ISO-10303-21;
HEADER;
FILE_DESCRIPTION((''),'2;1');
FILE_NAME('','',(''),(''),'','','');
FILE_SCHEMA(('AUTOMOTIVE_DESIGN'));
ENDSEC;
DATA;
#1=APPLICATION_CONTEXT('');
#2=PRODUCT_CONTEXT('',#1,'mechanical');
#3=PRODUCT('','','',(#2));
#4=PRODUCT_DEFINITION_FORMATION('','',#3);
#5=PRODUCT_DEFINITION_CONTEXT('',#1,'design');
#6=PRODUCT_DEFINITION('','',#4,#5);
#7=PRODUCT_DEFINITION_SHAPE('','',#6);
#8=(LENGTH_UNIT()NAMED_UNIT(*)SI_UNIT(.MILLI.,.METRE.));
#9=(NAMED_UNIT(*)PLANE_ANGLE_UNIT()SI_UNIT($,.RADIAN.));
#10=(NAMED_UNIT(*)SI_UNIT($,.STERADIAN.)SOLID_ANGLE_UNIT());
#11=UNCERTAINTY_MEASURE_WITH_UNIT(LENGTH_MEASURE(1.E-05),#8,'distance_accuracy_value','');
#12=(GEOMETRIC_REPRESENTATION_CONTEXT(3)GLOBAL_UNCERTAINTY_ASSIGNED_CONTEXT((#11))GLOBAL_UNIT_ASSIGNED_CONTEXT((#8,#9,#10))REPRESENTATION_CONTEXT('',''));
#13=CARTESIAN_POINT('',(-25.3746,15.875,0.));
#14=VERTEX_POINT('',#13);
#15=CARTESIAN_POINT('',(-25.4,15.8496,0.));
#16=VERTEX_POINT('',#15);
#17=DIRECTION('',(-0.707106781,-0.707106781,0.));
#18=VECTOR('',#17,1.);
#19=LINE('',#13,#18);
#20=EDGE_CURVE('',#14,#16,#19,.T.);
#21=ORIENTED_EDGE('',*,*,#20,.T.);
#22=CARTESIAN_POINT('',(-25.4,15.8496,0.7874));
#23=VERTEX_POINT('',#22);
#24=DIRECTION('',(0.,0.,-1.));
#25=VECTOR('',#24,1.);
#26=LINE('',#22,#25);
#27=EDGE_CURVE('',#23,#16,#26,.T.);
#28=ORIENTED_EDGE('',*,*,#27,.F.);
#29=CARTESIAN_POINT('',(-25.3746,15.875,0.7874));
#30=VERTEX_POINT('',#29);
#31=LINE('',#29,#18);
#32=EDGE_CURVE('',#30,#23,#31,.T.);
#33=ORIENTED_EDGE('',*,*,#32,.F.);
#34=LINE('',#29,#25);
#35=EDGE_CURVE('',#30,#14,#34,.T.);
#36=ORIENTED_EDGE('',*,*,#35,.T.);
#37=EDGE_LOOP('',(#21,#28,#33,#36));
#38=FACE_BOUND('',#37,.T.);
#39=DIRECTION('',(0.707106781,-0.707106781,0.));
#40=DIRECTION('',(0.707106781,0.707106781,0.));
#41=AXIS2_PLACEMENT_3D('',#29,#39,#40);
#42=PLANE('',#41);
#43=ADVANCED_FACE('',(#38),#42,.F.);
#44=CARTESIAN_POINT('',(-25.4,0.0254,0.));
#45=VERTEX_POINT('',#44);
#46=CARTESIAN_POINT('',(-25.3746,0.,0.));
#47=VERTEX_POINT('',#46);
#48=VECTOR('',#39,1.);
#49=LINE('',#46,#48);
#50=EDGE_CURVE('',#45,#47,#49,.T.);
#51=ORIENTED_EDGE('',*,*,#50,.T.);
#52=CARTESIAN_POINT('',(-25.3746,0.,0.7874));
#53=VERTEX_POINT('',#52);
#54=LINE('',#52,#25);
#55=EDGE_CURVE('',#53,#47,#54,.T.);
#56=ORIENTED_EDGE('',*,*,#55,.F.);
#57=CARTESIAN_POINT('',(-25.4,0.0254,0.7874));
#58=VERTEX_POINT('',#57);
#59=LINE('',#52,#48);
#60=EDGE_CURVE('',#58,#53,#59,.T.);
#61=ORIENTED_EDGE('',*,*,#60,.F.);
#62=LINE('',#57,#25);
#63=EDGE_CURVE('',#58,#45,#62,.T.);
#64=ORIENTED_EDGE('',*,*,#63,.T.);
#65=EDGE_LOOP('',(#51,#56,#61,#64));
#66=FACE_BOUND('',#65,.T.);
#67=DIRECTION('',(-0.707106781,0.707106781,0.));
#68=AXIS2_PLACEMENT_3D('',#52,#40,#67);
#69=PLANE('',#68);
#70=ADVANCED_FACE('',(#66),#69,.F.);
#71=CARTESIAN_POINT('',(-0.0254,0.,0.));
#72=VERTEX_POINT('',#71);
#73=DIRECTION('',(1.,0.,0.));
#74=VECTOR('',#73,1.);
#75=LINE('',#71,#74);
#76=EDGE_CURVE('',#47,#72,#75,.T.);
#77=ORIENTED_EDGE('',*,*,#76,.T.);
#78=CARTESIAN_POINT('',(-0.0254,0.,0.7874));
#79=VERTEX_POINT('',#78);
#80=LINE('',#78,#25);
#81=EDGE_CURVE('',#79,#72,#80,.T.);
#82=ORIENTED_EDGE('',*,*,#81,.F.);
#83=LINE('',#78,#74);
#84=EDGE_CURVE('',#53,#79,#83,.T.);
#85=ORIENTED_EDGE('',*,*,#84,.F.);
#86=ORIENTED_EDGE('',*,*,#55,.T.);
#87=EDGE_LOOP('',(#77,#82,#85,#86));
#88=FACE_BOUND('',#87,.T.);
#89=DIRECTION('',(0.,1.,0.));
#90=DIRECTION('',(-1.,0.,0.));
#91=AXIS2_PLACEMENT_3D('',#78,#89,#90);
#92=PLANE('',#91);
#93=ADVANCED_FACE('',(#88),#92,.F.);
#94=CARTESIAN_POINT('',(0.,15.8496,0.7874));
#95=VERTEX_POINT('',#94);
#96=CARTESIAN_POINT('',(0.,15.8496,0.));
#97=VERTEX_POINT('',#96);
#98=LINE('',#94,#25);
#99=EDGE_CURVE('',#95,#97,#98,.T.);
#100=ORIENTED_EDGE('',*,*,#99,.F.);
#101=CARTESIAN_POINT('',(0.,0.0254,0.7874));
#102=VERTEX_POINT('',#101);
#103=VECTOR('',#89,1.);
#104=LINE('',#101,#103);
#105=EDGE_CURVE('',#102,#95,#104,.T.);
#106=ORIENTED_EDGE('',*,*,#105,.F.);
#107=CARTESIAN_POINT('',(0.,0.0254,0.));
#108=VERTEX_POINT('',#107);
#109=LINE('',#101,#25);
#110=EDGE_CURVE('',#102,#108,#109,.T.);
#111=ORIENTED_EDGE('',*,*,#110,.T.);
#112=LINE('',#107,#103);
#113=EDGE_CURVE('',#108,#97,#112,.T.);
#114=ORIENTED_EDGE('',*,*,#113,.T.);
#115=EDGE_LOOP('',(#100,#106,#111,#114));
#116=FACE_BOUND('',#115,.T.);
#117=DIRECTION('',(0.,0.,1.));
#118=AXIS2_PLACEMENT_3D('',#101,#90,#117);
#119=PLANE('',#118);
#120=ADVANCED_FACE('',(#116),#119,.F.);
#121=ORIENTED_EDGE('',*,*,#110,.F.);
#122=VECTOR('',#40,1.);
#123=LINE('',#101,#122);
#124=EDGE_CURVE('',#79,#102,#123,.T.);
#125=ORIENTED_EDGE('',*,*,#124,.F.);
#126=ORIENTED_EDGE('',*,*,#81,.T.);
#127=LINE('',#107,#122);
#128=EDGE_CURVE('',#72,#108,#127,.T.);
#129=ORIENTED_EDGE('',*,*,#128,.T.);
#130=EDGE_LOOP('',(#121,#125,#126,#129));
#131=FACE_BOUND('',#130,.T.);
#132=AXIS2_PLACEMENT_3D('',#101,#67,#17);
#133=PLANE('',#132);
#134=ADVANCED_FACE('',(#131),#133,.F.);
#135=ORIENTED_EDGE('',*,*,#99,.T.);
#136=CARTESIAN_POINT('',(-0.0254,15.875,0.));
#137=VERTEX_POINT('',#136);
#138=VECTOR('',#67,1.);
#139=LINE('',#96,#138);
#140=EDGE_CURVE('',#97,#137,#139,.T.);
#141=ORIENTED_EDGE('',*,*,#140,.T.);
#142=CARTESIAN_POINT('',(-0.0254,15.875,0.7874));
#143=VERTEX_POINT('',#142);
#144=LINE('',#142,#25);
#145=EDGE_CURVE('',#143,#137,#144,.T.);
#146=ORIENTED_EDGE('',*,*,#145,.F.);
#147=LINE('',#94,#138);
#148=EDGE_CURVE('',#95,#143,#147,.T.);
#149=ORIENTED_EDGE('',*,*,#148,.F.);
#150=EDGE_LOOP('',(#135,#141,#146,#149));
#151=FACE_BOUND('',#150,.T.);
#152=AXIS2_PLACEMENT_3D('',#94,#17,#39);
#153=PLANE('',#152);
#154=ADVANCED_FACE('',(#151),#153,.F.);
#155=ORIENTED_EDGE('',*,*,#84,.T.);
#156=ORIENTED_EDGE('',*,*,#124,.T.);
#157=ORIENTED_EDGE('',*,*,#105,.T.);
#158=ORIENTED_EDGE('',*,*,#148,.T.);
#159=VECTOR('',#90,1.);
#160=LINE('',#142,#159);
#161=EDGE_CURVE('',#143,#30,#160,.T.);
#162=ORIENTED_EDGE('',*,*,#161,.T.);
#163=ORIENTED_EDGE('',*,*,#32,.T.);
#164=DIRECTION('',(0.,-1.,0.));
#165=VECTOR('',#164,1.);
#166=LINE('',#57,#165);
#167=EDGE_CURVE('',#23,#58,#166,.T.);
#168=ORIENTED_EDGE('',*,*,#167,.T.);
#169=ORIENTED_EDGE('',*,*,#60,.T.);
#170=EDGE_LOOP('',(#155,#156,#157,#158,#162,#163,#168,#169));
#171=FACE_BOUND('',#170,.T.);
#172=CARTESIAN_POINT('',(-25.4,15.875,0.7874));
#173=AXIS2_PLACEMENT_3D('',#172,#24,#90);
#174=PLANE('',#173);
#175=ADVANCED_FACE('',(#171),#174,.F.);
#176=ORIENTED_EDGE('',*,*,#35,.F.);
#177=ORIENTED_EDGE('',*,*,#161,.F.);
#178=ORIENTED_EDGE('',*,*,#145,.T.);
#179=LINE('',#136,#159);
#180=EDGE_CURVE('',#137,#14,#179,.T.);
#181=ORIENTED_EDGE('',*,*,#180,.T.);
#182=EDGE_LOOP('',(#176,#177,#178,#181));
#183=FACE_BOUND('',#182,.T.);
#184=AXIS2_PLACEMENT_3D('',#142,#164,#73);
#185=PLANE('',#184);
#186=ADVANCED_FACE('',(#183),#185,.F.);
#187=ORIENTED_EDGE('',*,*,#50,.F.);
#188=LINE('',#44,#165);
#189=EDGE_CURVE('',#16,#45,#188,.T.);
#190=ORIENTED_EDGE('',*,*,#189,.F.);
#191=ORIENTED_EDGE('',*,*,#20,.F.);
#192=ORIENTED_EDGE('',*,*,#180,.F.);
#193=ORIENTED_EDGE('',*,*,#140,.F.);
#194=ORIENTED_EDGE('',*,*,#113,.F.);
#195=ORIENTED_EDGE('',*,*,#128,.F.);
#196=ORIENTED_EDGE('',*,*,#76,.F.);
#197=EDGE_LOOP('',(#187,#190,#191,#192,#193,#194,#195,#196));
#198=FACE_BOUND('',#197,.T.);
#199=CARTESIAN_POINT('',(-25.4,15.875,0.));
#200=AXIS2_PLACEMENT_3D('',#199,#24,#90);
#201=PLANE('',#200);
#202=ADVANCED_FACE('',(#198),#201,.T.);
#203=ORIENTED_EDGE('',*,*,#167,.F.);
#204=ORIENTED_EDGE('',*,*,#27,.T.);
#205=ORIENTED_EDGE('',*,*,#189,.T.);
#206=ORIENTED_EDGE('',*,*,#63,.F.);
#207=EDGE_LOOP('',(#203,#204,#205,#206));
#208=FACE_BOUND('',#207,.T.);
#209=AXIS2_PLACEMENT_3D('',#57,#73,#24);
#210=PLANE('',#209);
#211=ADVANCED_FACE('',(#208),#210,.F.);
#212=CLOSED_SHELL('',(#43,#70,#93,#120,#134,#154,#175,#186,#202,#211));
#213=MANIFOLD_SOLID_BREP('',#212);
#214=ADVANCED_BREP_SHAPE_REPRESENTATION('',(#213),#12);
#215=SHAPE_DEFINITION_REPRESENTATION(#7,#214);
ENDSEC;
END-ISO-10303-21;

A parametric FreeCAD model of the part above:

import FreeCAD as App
import Part
import Sketcher

V = App.Vector
Q = App.Units.Quantity

doc = App.newDocument("Part")
params = doc.addObject("Spreadsheet::Sheet", "Params")
for row, (alias, value) in enumerate([
    ("sketch1_width", "0.998 in"),
    ("sketch1_height", "0.623 in"),
    ("pad1_length", "0.031 in"),
], start=1):
    params.set(f"A{row}", alias)
    params.set(f"B{row}", "=" + value)
    params.setAlias(f"B{row}", alias)

body = doc.addObject("PartDesign::Body", "Body")

sketch1 = body.newObject("Sketcher::SketchObject", "Sketch")
sketch1.AttachmentSupport = (doc.getObject("XY_Plane"), [""])
sketch1.MapMode = "FlatFace"
sketch1.addGeometry(Part.LineSegment(V(-25.375, 15.875, 0), V(-25.4, 15.85, 0)), False)
sketch1.addGeometry(Part.LineSegment(V(-25.4, 15.85, 0), V(-25.4, 0.025, 0)), False)
sketch1.addGeometry(Part.LineSegment(V(-25.4, 0.025, 0), V(-25.375, 0, 0)), False)
sketch1.addGeometry(Part.LineSegment(V(-25.375, 0, 0), V(-0.025, 0, 0)), False)
sketch1.addGeometry(Part.LineSegment(V(-0.025, 0, 0), V(0, 0.025, 0)), False)
sketch1.addGeometry(Part.LineSegment(V(0, 0.025, 0), V(0, 15.85, 0)), False)
sketch1.addGeometry(Part.LineSegment(V(0, 15.85, 0), V(-0.025, 15.875, 0)), False)
sketch1.addGeometry(Part.LineSegment(V(-0.025, 15.875, 0), V(-25.375, 15.875, 0)), False)
sketch1.addConstraint(Sketcher.Constraint("Coincident", 0, 2, 1, 1))
sketch1.addConstraint(Sketcher.Constraint("Coincident", 1, 2, 2, 1))
sketch1.addConstraint(Sketcher.Constraint("Coincident", 2, 2, 3, 1))
sketch1.addConstraint(Sketcher.Constraint("Coincident", 3, 2, 4, 1))
sketch1.addConstraint(Sketcher.Constraint("Coincident", 4, 2, 5, 1))
sketch1.addConstraint(Sketcher.Constraint("Coincident", 5, 2, 6, 1))
sketch1.addConstraint(Sketcher.Constraint("Coincident", 6, 2, 7, 1))
sketch1.addConstraint(Sketcher.Constraint("Coincident", 7, 2, 0, 1))
sketch1.addConstraint(Sketcher.Constraint("Vertical", 1))
sketch1.addConstraint(Sketcher.Constraint("Horizontal", 3))
sketch1.addConstraint(Sketcher.Constraint("Vertical", 5))
sketch1.addConstraint(Sketcher.Constraint("Horizontal", 7))
sketch1.addConstraint(Sketcher.Constraint("PointOnObject", 2, 2, -1))
sketch1.addConstraint(Sketcher.Constraint("PointOnObject", 4, 2, -2))
sketch1.addConstraint(Sketcher.Constraint("Perpendicular", 0, 2))
sketch1.addConstraint(Sketcher.Constraint("Perpendicular", 2, 4))
sketch1.addConstraint(Sketcher.Constraint("Perpendicular", 4, 6))
sketch1.addConstraint(Sketcher.Constraint("Horizontal", 1, 2, 4, 2))
sketch1.addConstraint(Sketcher.Constraint("Horizontal", 0, 2, 5, 2))
sketch1.addConstraint(Sketcher.Constraint("Vertical", 3, 2, 6, 2))
sketch1.addConstraint(Sketcher.Constraint("Vertical", 2, 2, 7, 2))
sketch1.addConstraint(Sketcher.Constraint("DistanceX", 0, 2, -1, 1, Q("1 in")))
sketch1.addConstraint(Sketcher.Constraint("DistanceX", 3, 1, 3, 2, Q("0.998 in")))
sketch1.addConstraint(Sketcher.Constraint("DistanceY", 1, 2, 1, 1, Q("0.623 in")))
sketch1.setExpression("Constraints[22]", "Params.sketch1_width")
sketch1.setExpression("Constraints[23]", "Params.sketch1_height")
pad1 = body.newObject("PartDesign::Pad", "Pad")
pad1.Profile = sketch1
pad1.setExpression("Length", "Params.pad1_length")

doc.recompute()
